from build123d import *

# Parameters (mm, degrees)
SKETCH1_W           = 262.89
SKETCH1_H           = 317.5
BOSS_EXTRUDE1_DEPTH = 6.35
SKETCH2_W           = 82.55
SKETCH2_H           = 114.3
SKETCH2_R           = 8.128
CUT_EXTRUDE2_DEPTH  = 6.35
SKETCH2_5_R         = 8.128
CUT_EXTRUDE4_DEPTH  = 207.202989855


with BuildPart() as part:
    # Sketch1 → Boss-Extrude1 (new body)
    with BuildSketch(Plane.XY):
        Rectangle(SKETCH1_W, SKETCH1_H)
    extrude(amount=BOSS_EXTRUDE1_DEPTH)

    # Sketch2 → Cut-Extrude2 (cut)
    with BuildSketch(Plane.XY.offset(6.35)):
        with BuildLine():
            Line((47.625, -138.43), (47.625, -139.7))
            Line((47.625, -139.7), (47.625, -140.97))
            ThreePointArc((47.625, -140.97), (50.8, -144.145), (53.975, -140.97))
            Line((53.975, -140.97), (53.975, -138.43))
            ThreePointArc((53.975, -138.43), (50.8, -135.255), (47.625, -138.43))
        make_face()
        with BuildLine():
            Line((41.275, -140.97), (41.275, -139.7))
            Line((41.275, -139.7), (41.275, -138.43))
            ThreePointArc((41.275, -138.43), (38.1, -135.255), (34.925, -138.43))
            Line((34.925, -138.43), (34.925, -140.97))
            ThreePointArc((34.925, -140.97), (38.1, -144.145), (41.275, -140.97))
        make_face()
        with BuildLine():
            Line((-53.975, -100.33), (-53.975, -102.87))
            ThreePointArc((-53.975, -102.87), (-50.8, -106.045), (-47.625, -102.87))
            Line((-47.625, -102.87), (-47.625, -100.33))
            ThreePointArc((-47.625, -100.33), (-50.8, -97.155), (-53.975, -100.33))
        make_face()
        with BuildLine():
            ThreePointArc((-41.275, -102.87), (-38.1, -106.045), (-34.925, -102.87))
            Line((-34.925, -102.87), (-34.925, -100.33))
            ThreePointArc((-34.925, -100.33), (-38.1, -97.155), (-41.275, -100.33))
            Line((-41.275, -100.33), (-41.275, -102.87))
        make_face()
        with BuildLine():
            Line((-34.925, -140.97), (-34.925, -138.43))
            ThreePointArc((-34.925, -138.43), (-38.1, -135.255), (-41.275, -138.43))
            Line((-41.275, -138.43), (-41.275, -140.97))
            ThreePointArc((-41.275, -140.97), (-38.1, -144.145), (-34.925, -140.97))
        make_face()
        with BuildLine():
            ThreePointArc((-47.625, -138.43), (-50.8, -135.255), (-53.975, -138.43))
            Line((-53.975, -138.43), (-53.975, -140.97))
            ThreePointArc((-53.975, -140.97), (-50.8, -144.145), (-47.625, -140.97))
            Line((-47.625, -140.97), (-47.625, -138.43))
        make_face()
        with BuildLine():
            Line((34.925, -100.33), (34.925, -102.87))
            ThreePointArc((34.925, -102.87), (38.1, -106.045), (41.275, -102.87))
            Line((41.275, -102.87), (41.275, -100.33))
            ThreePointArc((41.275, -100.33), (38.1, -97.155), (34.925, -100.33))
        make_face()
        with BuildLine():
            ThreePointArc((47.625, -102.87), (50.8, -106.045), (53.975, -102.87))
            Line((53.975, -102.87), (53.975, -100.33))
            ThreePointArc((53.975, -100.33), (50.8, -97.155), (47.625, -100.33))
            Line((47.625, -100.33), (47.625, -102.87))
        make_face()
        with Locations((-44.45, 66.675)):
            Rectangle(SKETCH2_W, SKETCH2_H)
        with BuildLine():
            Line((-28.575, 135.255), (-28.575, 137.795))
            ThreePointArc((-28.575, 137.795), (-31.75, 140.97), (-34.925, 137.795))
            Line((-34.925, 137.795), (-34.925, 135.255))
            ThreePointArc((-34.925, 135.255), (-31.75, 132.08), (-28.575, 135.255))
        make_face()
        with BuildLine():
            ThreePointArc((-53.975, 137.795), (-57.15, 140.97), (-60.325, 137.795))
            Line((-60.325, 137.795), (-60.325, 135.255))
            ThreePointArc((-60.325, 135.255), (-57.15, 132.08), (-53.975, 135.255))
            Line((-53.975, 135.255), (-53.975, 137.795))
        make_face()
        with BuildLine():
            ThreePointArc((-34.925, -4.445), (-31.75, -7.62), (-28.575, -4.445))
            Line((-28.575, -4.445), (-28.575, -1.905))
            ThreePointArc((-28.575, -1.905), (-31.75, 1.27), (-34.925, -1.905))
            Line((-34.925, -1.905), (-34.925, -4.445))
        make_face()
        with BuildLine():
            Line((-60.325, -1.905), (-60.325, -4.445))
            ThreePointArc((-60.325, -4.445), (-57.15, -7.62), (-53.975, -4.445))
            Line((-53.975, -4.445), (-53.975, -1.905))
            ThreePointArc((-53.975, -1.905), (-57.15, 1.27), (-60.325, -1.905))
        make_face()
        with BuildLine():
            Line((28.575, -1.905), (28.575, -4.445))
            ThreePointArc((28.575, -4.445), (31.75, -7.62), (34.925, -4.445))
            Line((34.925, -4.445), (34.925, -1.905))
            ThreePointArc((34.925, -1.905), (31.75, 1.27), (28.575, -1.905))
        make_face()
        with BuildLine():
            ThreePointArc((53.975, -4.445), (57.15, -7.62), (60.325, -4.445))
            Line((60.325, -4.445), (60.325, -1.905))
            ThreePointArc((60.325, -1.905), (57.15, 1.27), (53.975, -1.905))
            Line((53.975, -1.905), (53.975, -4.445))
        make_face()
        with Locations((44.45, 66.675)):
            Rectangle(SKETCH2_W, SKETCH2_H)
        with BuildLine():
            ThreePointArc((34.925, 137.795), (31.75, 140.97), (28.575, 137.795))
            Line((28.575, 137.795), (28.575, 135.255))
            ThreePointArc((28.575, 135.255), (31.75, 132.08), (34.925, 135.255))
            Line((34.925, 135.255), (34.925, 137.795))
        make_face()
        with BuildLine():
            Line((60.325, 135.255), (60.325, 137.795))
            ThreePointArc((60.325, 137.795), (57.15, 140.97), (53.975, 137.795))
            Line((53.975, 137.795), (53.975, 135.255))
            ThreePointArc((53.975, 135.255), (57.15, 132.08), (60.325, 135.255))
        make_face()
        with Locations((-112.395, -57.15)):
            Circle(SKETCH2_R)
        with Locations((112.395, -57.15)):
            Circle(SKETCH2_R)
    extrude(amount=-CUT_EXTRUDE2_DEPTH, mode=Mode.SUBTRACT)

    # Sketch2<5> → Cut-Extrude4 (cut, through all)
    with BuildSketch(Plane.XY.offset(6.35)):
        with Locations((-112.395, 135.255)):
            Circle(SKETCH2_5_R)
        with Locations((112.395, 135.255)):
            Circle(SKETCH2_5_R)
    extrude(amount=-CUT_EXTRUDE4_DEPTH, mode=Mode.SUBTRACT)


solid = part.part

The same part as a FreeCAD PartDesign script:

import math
import FreeCAD as App
import Part
import Sketcher
Q = App.Units.Quantity

doc = App.newDocument("Part")
params = doc.addObject("Spreadsheet::Sheet", "Params")
for row, (alias, value) in enumerate([
    ("sketch1_height", "12.5 in"),
    ("sketch1_width", "10.35 in"),
    ("pad1_length", "0.25 in"),
    ("sketch2_diameter", "0.64 in"),
    ("sketch2_height", "0.1 in"),
    ("sketch2_height2", "4.5 in"),
    ("sketch2_radius", "0.125 in"),
    ("sketch2_width", "3.25 in"),
    ("pocket1_length", "0.25 in"),
    ("sketch3_diameter", "0.64 in"),
], start=1):
    params.set(f"A{row}", alias)
    params.set(f"B{row}", "=" + value)
    params.setAlias(f"B{row}", alias)

body = doc.addObject("PartDesign::Body", "Body")

# Sketch on XY plane
sketch1 = doc.addObject("Sketcher::SketchObject", "Sketch")
body.addObject(sketch1)
sketch1.AttachmentSupport = (doc.XY_Plane, [""])
sketch1.MapMode = "FlatFace"
sketch1.addGeometry([
    Part.LineSegment(App.Vector(-131, 159, 0), App.Vector(-131, -159, 0)),
    Part.LineSegment(App.Vector(-131, -159, 0), App.Vector(131, -159, 0)),
    Part.LineSegment(App.Vector(131, -159, 0), App.Vector(131, 159, 0)),
    Part.LineSegment(App.Vector(131, 159, 0), App.Vector(-131, 159, 0)),
], False)
sketch1.addConstraint([
    Sketcher.Constraint("Coincident", 0, 2, 1, 1),
    Sketcher.Constraint("Coincident", 1, 2, 2, 1),
    Sketcher.Constraint("Coincident", 2, 2, 3, 1),
    Sketcher.Constraint("Coincident", 3, 2, 0, 1),
    Sketcher.Constraint("Vertical", 0),
    Sketcher.Constraint("Horizontal", 1),
    Sketcher.Constraint("Vertical", 2),
    Sketcher.Constraint("Horizontal", 3),
    Sketcher.Constraint("Symmetric", 0, 2, 2, 2, -1, 1),
    Sketcher.Constraint("DistanceY", 0, 2, 0, 1, Q("12.5 in")),
    Sketcher.Constraint("DistanceX", 1, 1, 1, 2, Q("10.35 in")),
])
sketch1.setExpression("Constraints[9]", "Params.sketch1_height")
sketch1.setExpression("Constraints[10]", "Params.sketch1_width")
pad1 = doc.addObject("PartDesign::Pad", "Pad")
body.addObject(pad1)
pad1.Profile = sketch1
pad1.setExpression("Length", "Params.pad1_length")

# Sketch on XY plane
sketch2 = doc.addObject("Sketcher::SketchObject", "Sketch001")
body.addObject(sketch2)
sketch2.AttachmentSupport = (doc.XY_Plane, [""])
sketch2.MapMode = "FlatFace"
sketch2.AttachmentOffset = App.Placement(App.Vector(0, 0, 0.25 * 25.4), App.Rotation())
sketch2.addGeometry([
    Part.LineSegment(App.Vector(47.6, -138.4, 0), App.Vector(47.6, -141, 0)),  # 0
    Part.ArcOfCircle(Part.Circle(App.Vector(50.8, -141, 0), App.Vector(0, 0, 1), 3.2), math.radians(180), math.radians(360)),  # 1
    Part.LineSegment(App.Vector(54, -141, 0), App.Vector(54, -138.4, 0)),  # 2
    Part.ArcOfCircle(Part.Circle(App.Vector(50.8, -138.4, 0), App.Vector(0, 0, 1), 3.2), math.radians(0), math.radians(180)),  # 3
    Part.LineSegment(App.Vector(41.3, -141, 0), App.Vector(41.3, -138.4, 0)),  # 4
    Part.ArcOfCircle(Part.Circle(App.Vector(38.1, -138.4, 0), App.Vector(0, 0, 1), 3.2), math.radians(0), math.radians(180)),  # 5
    Part.LineSegment(App.Vector(34.9, -138.4, 0), App.Vector(34.9, -141, 0)),  # 6
    Part.ArcOfCircle(Part.Circle(App.Vector(38.1, -141, 0), App.Vector(0, 0, 1), 3.2), math.radians(180), math.radians(360)),  # 7
    Part.LineSegment(App.Vector(-54, -100.3, 0), App.Vector(-54, -102.9, 0)),  # 8
    Part.ArcOfCircle(Part.Circle(App.Vector(-50.8, -102.9, 0), App.Vector(0, 0, 1), 3.2), math.radians(180), math.radians(360)),  # 9
    Part.LineSegment(App.Vector(-47.6, -102.9, 0), App.Vector(-47.6, -100.3, 0)),  # 10
    Part.ArcOfCircle(Part.Circle(App.Vector(-50.8, -100.3, 0), App.Vector(0, 0, 1), 3.2), math.radians(0), math.radians(180)),  # 11
    Part.ArcOfCircle(Part.Circle(App.Vector(-38.1, -102.9, 0), App.Vector(0, 0, 1), 3.2), math.radians(180), math.radians(360)),  # 12
    Part.LineSegment(App.Vector(-34.9, -102.9, 0), App.Vector(-34.9, -100.3, 0)),  # 13
    Part.ArcOfCircle(Part.Circle(App.Vector(-38.1, -100.3, 0), App.Vector(0, 0, 1), 3.2), math.radians(0), math.radians(180)),  # 14
    Part.LineSegment(App.Vector(-41.3, -100.3, 0), App.Vector(-41.3, -102.9, 0)),  # 15
    Part.LineSegment(App.Vector(-34.9, -141, 0), App.Vector(-34.9, -138.4, 0)),  # 16
    Part.ArcOfCircle(Part.Circle(App.Vector(-38.1, -138.4, 0), App.Vector(0, 0, 1), 3.2), math.radians(0), math.radians(180)),  # 17
    Part.LineSegment(App.Vector(-41.3, -138.4, 0), App.Vector(-41.3, -141, 0)),  # 18
    Part.ArcOfCircle(Part.Circle(App.Vector(-38.1, -141, 0), App.Vector(0, 0, 1), 3.2), math.radians(180), math.radians(360)),  # 19
    Part.ArcOfCircle(Part.Circle(App.Vector(-50.8, -138.4, 0), App.Vector(0, 0, 1), 3.2), math.radians(0), math.radians(180)),  # 20
    Part.LineSegment(App.Vector(-54, -138.4, 0), App.Vector(-54, -141, 0)),  # 21
    Part.ArcOfCircle(Part.Circle(App.Vector(-50.8, -141, 0), App.Vector(0, 0, 1), 3.2), math.radians(180), math.radians(360)),  # 22
    Part.LineSegment(App.Vector(-47.6, -141, 0), App.Vector(-47.6, -138.4, 0)),  # 23
    Part.LineSegment(App.Vector(34.9, -100.3, 0), App.Vector(34.9, -102.9, 0)),  # 24
    Part.ArcOfCircle(Part.Circle(App.Vector(38.1, -102.9, 0), App.Vector(0, 0, 1), 3.2), math.radians(180), math.radians(360)),  # 25
    Part.LineSegment(App.Vector(41.3, -102.9, 0), App.Vector(41.3, -100.3, 0)),  # 26
    Part.ArcOfCircle(Part.Circle(App.Vector(38.1, -100.3, 0), App.Vector(0, 0, 1), 3.2), math.radians(0), math.radians(180)),  # 27
    Part.ArcOfCircle(Part.Circle(App.Vector(50.8, -102.9, 0), App.Vector(0, 0, 1), 3.2), math.radians(180), math.radians(360)),  # 28
    Part.LineSegment(App.Vector(54, -102.9, 0), App.Vector(54, -100.3, 0)),  # 29
    Part.ArcOfCircle(Part.Circle(App.Vector(50.8, -100.3, 0), App.Vector(0, 0, 1), 3.2), math.radians(0), math.radians(180)),  # 30
    Part.LineSegment(App.Vector(47.6, -100.3, 0), App.Vector(47.6, -102.9, 0)),  # 31
    Part.LineSegment(App.Vector(-85.7, 123.8, 0), App.Vector(-85.7, 9.5, 0)),  # 32
    Part.LineSegment(App.Vector(-85.7, 9.5, 0), App.Vector(-3.2, 9.5, 0)),  # 33
    Part.LineSegment(App.Vector(-3.2, 9.5, 0), App.Vector(-3.2, 123.8, 0)),  # 34
    Part.LineSegment(App.Vector(-3.2, 123.8, 0), App.Vector(-85.7, 123.8, 0)),  # 35
    Part.LineSegment(App.Vector(-28.6, 135.3, 0), App.Vector(-28.6, 137.8, 0)),  # 36
    Part.ArcOfCircle(Part.Circle(App.Vector(-31.8, 137.8, 0), App.Vector(0, 0, 1), 3.2), math.radians(0), math.radians(180)),  # 37
    Part.LineSegment(App.Vector(-34.9, 137.8, 0), App.Vector(-34.9, 135.3, 0)),  # 38
    Part.ArcOfCircle(Part.Circle(App.Vector(-31.8, 135.3, 0), App.Vector(0, 0, 1), 3.2), math.radians(180), math.radians(360)),  # 39
    Part.ArcOfCircle(Part.Circle(App.Vector(-57.1, 137.8, 0), App.Vector(0, 0, 1), 3.2), math.radians(0), math.radians(180)),  # 40
    Part.LineSegment(App.Vector(-60.3, 137.8, 0), App.Vector(-60.3, 135.3, 0)),  # 41
    Part.ArcOfCircle(Part.Circle(App.Vector(-57.1, 135.3, 0), App.Vector(0, 0, 1), 3.2), math.radians(180), math.radians(360)),  # 42
    Part.LineSegment(App.Vector(-54, 135.3, 0), App.Vector(-54, 137.8, 0)),  # 43
    Part.ArcOfCircle(Part.Circle(App.Vector(-31.8, -4.4, 0), App.Vector(0, 0, 1), 3.2), math.radians(180), math.radians(360)),  # 44
    Part.LineSegment(App.Vector(-28.6, -4.4, 0), App.Vector(-28.6, -1.9, 0)),  # 45
    Part.ArcOfCircle(Part.Circle(App.Vector(-31.8, -1.9, 0), App.Vector(0, 0, 1), 3.2), math.radians(0), math.radians(180)),  # 46
    Part.LineSegment(App.Vector(-34.9, -1.9, 0), App.Vector(-34.9, -4.4, 0)),  # 47
    Part.LineSegment(App.Vector(-60.3, -1.9, 0), App.Vector(-60.3, -4.4, 0)),  # 48
    Part.ArcOfCircle(Part.Circle(App.Vector(-57.1, -4.4, 0), App.Vector(0, 0, 1), 3.2), math.radians(180), math.radians(360)),  # 49
    Part.LineSegment(App.Vector(-54, -4.4, 0), App.Vector(-54, -1.9, 0)),  # 50
    Part.ArcOfCircle(Part.Circle(App.Vector(-57.1, -1.9, 0), App.Vector(0, 0, 1), 3.2), math.radians(0), math.radians(180)),  # 51
    Part.LineSegment(App.Vector(28.6, -1.9, 0), App.Vector(28.6, -4.4, 0)),  # 52
    Part.ArcOfCircle(Part.Circle(App.Vector(31.8, -4.4, 0), App.Vector(0, 0, 1), 3.2), math.radians(180), math.radians(360)),  # 53
    Part.LineSegment(App.Vector(34.9, -4.4, 0), App.Vector(34.9, -1.9, 0)),  # 54
    Part.ArcOfCircle(Part.Circle(App.Vector(31.8, -1.9, 0), App.Vector(0, 0, 1), 3.2), math.radians(0), math.radians(180)),  # 55
    Part.ArcOfCircle(Part.Circle(App.Vector(57.1, -4.4, 0), App.Vector(0, 0, 1), 3.2), math.radians(180), math.radians(360)),  # 56
    Part.LineSegment(App.Vector(60.3, -4.4, 0), App.Vector(60.3, -1.9, 0)),  # 57
    Part.ArcOfCircle(Part.Circle(App.Vector(57.1, -1.9, 0), App.Vector(0, 0, 1), 3.2), math.radians(0), math.radians(180)),  # 58
    Part.LineSegment(App.Vector(54, -1.9, 0), App.Vector(54, -4.4, 0)),  # 59
    Part.LineSegment(App.Vector(3.2, 123.8, 0), App.Vector(3.2, 9.5, 0)),  # 60
    Part.LineSegment(App.Vector(3.2, 9.5, 0), App.Vector(85.7, 9.5, 0)),  # 61
    Part.LineSegment(App.Vector(85.7, 9.5, 0), App.Vector(85.7, 123.8, 0)),  # 62
    Part.LineSegment(App.Vector(85.7, 123.8, 0), App.Vector(3.2, 123.8, 0)),  # 63
    Part.ArcOfCircle(Part.Circle(App.Vector(31.8, 137.8, 0), App.Vector(0, 0, 1), 3.2), math.radians(0), math.radians(180)),  # 64
    Part.LineSegment(App.Vector(28.6, 137.8, 0), App.Vector(28.6, 135.3, 0)),  # 65
    Part.ArcOfCircle(Part.Circle(App.Vector(31.8, 135.3, 0), App.Vector(0, 0, 1), 3.2), math.radians(180), math.radians(360)),  # 66
    Part.LineSegment(App.Vector(34.9, 135.3, 0), App.Vector(34.9, 137.8, 0)),  # 67
    Part.LineSegment(App.Vector(60.3, 135.3, 0), App.Vector(60.3, 137.8, 0)),  # 68
    Part.ArcOfCircle(Part.Circle(App.Vector(57.1, 137.8, 0), App.Vector(0, 0, 1), 3.2), math.radians(0), math.radians(180)),  # 69
    Part.LineSegment(App.Vector(54, 137.8, 0), App.Vector(54, 135.3, 0)),  # 70
    Part.ArcOfCircle(Part.Circle(App.Vector(57.1, 135.3, 0), App.Vector(0, 0, 1), 3.2), math.radians(180), math.radians(360)),  # 71
    Part.Circle(App.Vector(-112.4, -57.1, 0), App.Vector(0, 0, 1), 8.1),  # 72
    Part.Circle(App.Vector(112.4, -57.1, 0), App.Vector(0, 0, 1), 8.1),  # 73
], False)
sketch2.addConstraint([
    Sketcher.Constraint("Tangent", 0, 2, 1, 1),
    Sketcher.Constraint("Tangent", 1, 2, 2, 1),
    Sketcher.Constraint("Tangent", 2, 2, 3, 1),
    Sketcher.Constraint("Tangent", 3, 2, 0, 1),
    Sketcher.Constraint("Tangent", 4, 2, 5, 1),
    Sketcher.Constraint("Tangent", 5, 2, 6, 1),
    Sketcher.Constraint("Tangent", 6, 2, 7, 1),
    Sketcher.Constraint("Tangent", 7, 2, 4, 1),
    Sketcher.Constraint("Tangent", 8, 2, 9, 1),
    Sketcher.Constraint("Tangent", 9, 2, 10, 1),
    Sketcher.Constraint("Tangent", 10, 2, 11, 1),
    Sketcher.Constraint("Tangent", 11, 2, 8, 1),
    Sketcher.Constraint("Tangent", 12, 2, 13, 1),
    Sketcher.Constraint("Tangent", 13, 2, 14, 1),
    Sketcher.Constraint("Tangent", 14, 2, 15, 1),
    Sketcher.Constraint("Tangent", 15, 2, 12, 1),
    Sketcher.Constraint("Tangent", 16, 2, 17, 1),
    Sketcher.Constraint("Tangent", 17, 2, 18, 1),
    Sketcher.Constraint("Tangent", 18, 2, 19, 1),
    Sketcher.Constraint("Tangent", 19, 2, 16, 1),
    Sketcher.Constraint("Tangent", 20, 2, 21, 1),
    Sketcher.Constraint("Tangent", 21, 2, 22, 1),
    Sketcher.Constraint("Tangent", 22, 2, 23, 1),
    Sketcher.Constraint("Tangent", 23, 2, 20, 1),
    Sketcher.Constraint("Tangent", 24, 2, 25, 1),
    Sketcher.Constraint("Tangent", 25, 2, 26, 1),
    Sketcher.Constraint("Tangent", 26, 2, 27, 1),
    Sketcher.Constraint("Tangent", 27, 2, 24, 1),
    Sketcher.Constraint("Tangent", 28, 2, 29, 1),
    Sketcher.Constraint("Tangent", 29, 2, 30, 1),
    Sketcher.Constraint("Tangent", 30, 2, 31, 1),
    Sketcher.Constraint("Tangent", 31, 2, 28, 1),
    Sketcher.Constraint("Coincident", 32, 2, 33, 1),
    Sketcher.Constraint("Coincident", 33, 2, 34, 1),
    Sketcher.Constraint("Coincident", 34, 2, 35, 1),
    Sketcher.Constraint("Coincident", 35, 2, 32, 1),
    Sketcher.Constraint("Tangent", 36, 2, 37, 1),
    Sketcher.Constraint("Tangent", 37, 2, 38, 1),
    Sketcher.Constraint("Tangent", 38, 2, 39, 1),
    Sketcher.Constraint("Tangent", 39, 2, 36, 1),
    Sketcher.Constraint("Tangent", 40, 2, 41, 1),
    Sketcher.Constraint("Tangent", 41, 2, 42, 1),
    Sketcher.Constraint("Tangent", 42, 2, 43, 1),
    Sketcher.Constraint("Tangent", 43, 2, 40, 1),
    Sketcher.Constraint("Tangent", 44, 2, 45, 1),
    Sketcher.Constraint("Tangent", 45, 2, 46, 1),
    Sketcher.Constraint("Tangent", 46, 2, 47, 1),
    Sketcher.Constraint("Tangent", 47, 2, 44, 1),
    Sketcher.Constraint("Tangent", 48, 2, 49, 1),
    Sketcher.Constraint("Tangent", 49, 2, 50, 1),
    Sketcher.Constraint("Tangent", 50, 2, 51, 1),
    Sketcher.Constraint("Tangent", 51, 2, 48, 1),
    Sketcher.Constraint("Tangent", 52, 2, 53, 1),
    Sketcher.Constraint("Tangent", 53, 2, 54, 1),
    Sketcher.Constraint("Tangent", 54, 2, 55, 1),
    Sketcher.Constraint("Tangent", 55, 2, 52, 1),
    Sketcher.Constraint("Tangent", 56, 2, 57, 1),
    Sketcher.Constraint("Tangent", 57, 2, 58, 1),
    Sketcher.Constraint("Tangent", 58, 2, 59, 1),
    Sketcher.Constraint("Tangent", 59, 2, 56, 1),
    Sketcher.Constraint("Coincident", 60, 2, 61, 1),
    Sketcher.Constraint("Coincident", 61, 2, 62, 1),
    Sketcher.Constraint("Coincident", 62, 2, 63, 1),
    Sketcher.Constraint("Coincident", 63, 2, 60, 1),
    Sketcher.Constraint("Tangent", 64, 2, 65, 1),
    Sketcher.Constraint("Tangent", 65, 2, 66, 1),
    Sketcher.Constraint("Tangent", 66, 2, 67, 1),
    Sketcher.Constraint("Tangent", 67, 2, 64, 1),
    Sketcher.Constraint("Tangent", 68, 2, 69, 1),
    Sketcher.Constraint("Tangent", 69, 2, 70, 1),
    Sketcher.Constraint("Tangent", 70, 2, 71, 1),
    Sketcher.Constraint("Tangent", 71, 2, 68, 1),
    Sketcher.Constraint("Vertical", 0),
    Sketcher.Constraint("Vertical", 2),
    Sketcher.Constraint("Vertical", 4),
    Sketcher.Constraint("Vertical", 6),
    Sketcher.Constraint("Vertical", 8),
    Sketcher.Constraint("Vertical", 10),
    Sketcher.Constraint("Vertical", 13),
    Sketcher.Constraint("Vertical", 15),
    Sketcher.Constraint("Vertical", 16),
    Sketcher.Constraint("Vertical", 18),
    Sketcher.Constraint("Vertical", 21),
    Sketcher.Constraint("Vertical", 23),
    Sketcher.Constraint("Vertical", 24),
    Sketcher.Constraint("Vertical", 26),
    Sketcher.Constraint("Vertical", 29),
    Sketcher.Constraint("Vertical", 31),
    Sketcher.Constraint("Vertical", 32),
    Sketcher.Constraint("Horizontal", 33),
    Sketcher.Constraint("Vertical", 34),
    Sketcher.Constraint("Horizontal", 35),
    Sketcher.Constraint("Vertical", 36),
    Sketcher.Constraint("Vertical", 38),
    Sketcher.Constraint("Vertical", 41),
    Sketcher.Constraint("Vertical", 43),
    Sketcher.Constraint("Vertical", 45),
    Sketcher.Constraint("Vertical", 47),
    Sketcher.Constraint("Vertical", 48),
    Sketcher.Constraint("Vertical", 50),
    Sketcher.Constraint("Vertical", 52),
    Sketcher.Constraint("Vertical", 54),
    Sketcher.Constraint("Vertical", 57),
    Sketcher.Constraint("Vertical", 59),
    Sketcher.Constraint("Vertical", 60),
    Sketcher.Constraint("Horizontal", 61),
    Sketcher.Constraint("Vertical", 62),
    Sketcher.Constraint("Horizontal", 63),
    Sketcher.Constraint("Vertical", 65),
    Sketcher.Constraint("Vertical", 67),
    Sketcher.Constraint("Vertical", 68),
    Sketcher.Constraint("Vertical", 70),
    Sketcher.Constraint("Equal", 3, 5),
    Sketcher.Constraint("Equal", 7, 9),
    Sketcher.Constraint("Equal", 11, 12),
    Sketcher.Constraint("Equal", 14, 17),
    Sketcher.Constraint("Equal", 19, 20),
    Sketcher.Constraint("Equal", 22, 25),
    Sketcher.Constraint("Equal", 27, 28),
    Sketcher.Constraint("Equal", 30, 37),
    Sketcher.Constraint("Equal", 39, 40),
    Sketcher.Constraint("Equal", 42, 44),
    Sketcher.Constraint("Equal", 46, 49),
    Sketcher.Constraint("Equal", 51, 53),
    Sketcher.Constraint("Equal", 55, 56),
    Sketcher.Constraint("Equal", 58, 64),
    Sketcher.Constraint("Equal", 66, 69),
    Sketcher.Constraint("Equal", 72, 73),
    Sketcher.Constraint("Symmetric", 5, 3, 17, 3, -2),
    Sketcher.Constraint("Symmetric", 3, 3, 20, 3, -2),
    Sketcher.Constraint("Symmetric", 12, 3, 25, 3, -2),
    Sketcher.Constraint("Symmetric", 9, 3, 28, 3, -2),
    Sketcher.Constraint("Symmetric", 44, 3, 53, 3, -2),
    Sketcher.Constraint("Symmetric", 49, 3, 56, 3, -2),
    Sketcher.Constraint("Symmetric", 37, 3, 64, 3, -2),
    Sketcher.Constraint("Symmetric", 40, 3, 69, 3, -2),
    Sketcher.Constraint("Symmetric", 72, 3, 73, 3, -2),
    Sketcher.Constraint("Symmetric", 33, 2, 60, 2, -2),
    Sketcher.Constraint("Symmetric", 35, 2, 62, 2, -2),
    Sketcher.Constraint("Horizontal", 3, 3, 5, 3),
    Sketcher.Constraint("Horizontal", 1, 3, 7, 3),
    Sketcher.Constraint("Horizontal", 9, 3, 12, 3),
    Sketcher.Constraint("Horizontal", 11, 3, 14, 3),
    Sketcher.Constraint("Horizontal", 7, 3, 19, 3),
    Sketcher.Constraint("Horizontal", 19, 3, 22, 3),
    Sketcher.Constraint("Horizontal", 14, 3, 27, 3),
    Sketcher.Constraint("Horizontal", 27, 3, 30, 3),
    Sketcher.Constraint("Horizontal", 37, 3, 40, 3),
    Sketcher.Constraint("Horizontal", 39, 3, 42, 3),
    Sketcher.Constraint("Horizontal", 44, 3, 49, 3),
    Sketcher.Constraint("Horizontal", 46, 3, 51, 3),
    Sketcher.Constraint("Horizontal", 51, 3, 55, 3),
    Sketcher.Constraint("Horizontal", 55, 3, 58, 3),
    Sketcher.Constraint("Horizontal", 42, 3, 66, 3),
    Sketcher.Constraint("Horizontal", 66, 3, 71, 3),
    Sketcher.Constraint("Vertical", 14, 3, 17, 3),
    Sketcher.Constraint("Vertical", 11, 3, 20, 3),
    Sketcher.Constraint("Vertical", 39, 3, 44, 3),
    Sketcher.Constraint("Vertical", 42, 3, 49, 3),
    Sketcher.Constraint("Vertical", 19, 2, 37, 2),
    Sketcher.Constraint("Vertical", 21, 2, 42, 2),
    Sketcher.Constraint("Equal", 6, 8),
    Sketcher.Constraint("Equal", 31, 36),
    Sketcher.Constraint("Equal", 43, 45),
    Sketcher.Constraint("Diameter", 72, Q("0.64 in")),
    Sketcher.Constraint("DistanceY", 0, 2, 0, 1, Q("0.1 in")),
    Sketcher.Constraint("DistanceY", 32, 2, 32, 1, Q("4.5 in")),
    Sketcher.Constraint("DistanceX", -1, 1, 1, 3, Q("2 in")),
    Sketcher.Constraint("Radius", 1, Q("0.125 in")),
    Sketcher.Constraint("DistanceX", 33, 1, 33, 2, Q("3.25 in")),
    Sketcher.Constraint("DistanceX", -1, 1, 5, 3, Q("1.5 in")),
    Sketcher.Constraint("DistanceY", 1, 3, -1, 1, Q("5.55 in")),
    Sketcher.Constraint("DistanceY", 9, 3, -1, 1, Q("4.05 in")),
    Sketcher.Constraint("DistanceY", 72, 3, -1, 1, Q("2.25 in")),
    Sketcher.Constraint("DistanceY", -1, 1, 37, 3, Q("5.425 in")),
    Sketcher.Constraint("DistanceY", 44, 3, -1, 1, Q("0.175 in")),
    Sketcher.Constraint("DistanceX", 72, 3, -1, 1, Q("4.425 in")),
    Sketcher.Constraint("DistanceX", 32, 2, -1, 1, Q("3.375 in")),
    Sketcher.Constraint("DistanceY", -1, 1, 32, 2, Q("0.375 in")),
])
sketch2.setExpression("Constraints[164]", "Params.sketch2_diameter")
sketch2.setExpression("Constraints[165]", "Params.sketch2_height")
sketch2.setExpression("Constraints[166]", "Params.sketch2_height2")
sketch2.setExpression("Constraints[168]", "Params.sketch2_radius")
sketch2.setExpression("Constraints[169]", "Params.sketch2_width")
pocket1 = doc.addObject("PartDesign::Pocket", "Pocket")
body.addObject(pocket1)
pocket1.Profile = sketch2
pocket1.setExpression("Length", "Params.pocket1_length")

# Sketch on XY plane
sketch3 = doc.addObject("Sketcher::SketchObject", "Sketch002")
body.addObject(sketch3)
sketch3.AttachmentSupport = (doc.XY_Plane, [""])
sketch3.MapMode = "FlatFace"
sketch3.AttachmentOffset = App.Placement(App.Vector(0, 0, 0.25 * 25.4), App.Rotation())
sketch3.addGeometry([
    Part.Circle(App.Vector(-112, 135, 0), App.Vector(0, 0, 1), 8),
    Part.Circle(App.Vector(112, 135, 0), App.Vector(0, 0, 1), 8),
], False)
sketch3.addConstraint([
    Sketcher.Constraint("Equal", 0, 1),
    Sketcher.Constraint("Symmetric", 0, 3, 1, 3, -2),
    Sketcher.Constraint("Diameter", 0, Q("0.64 in")),
    Sketcher.Constraint("DistanceX", 0, 3, 1, 3, Q("8.85 in")),
    Sketcher.Constraint("DistanceY", -1, 1, 0, 3, Q("5.325 in")),
])
sketch3.setExpression("Constraints[2]", "Params.sketch3_diameter")
pocket2 = doc.addObject("PartDesign::Pocket", "Pocket001")
body.addObject(pocket2)
pocket2.Profile = sketch3
pocket2.Type = "ThroughAll"

doc.recompute()
